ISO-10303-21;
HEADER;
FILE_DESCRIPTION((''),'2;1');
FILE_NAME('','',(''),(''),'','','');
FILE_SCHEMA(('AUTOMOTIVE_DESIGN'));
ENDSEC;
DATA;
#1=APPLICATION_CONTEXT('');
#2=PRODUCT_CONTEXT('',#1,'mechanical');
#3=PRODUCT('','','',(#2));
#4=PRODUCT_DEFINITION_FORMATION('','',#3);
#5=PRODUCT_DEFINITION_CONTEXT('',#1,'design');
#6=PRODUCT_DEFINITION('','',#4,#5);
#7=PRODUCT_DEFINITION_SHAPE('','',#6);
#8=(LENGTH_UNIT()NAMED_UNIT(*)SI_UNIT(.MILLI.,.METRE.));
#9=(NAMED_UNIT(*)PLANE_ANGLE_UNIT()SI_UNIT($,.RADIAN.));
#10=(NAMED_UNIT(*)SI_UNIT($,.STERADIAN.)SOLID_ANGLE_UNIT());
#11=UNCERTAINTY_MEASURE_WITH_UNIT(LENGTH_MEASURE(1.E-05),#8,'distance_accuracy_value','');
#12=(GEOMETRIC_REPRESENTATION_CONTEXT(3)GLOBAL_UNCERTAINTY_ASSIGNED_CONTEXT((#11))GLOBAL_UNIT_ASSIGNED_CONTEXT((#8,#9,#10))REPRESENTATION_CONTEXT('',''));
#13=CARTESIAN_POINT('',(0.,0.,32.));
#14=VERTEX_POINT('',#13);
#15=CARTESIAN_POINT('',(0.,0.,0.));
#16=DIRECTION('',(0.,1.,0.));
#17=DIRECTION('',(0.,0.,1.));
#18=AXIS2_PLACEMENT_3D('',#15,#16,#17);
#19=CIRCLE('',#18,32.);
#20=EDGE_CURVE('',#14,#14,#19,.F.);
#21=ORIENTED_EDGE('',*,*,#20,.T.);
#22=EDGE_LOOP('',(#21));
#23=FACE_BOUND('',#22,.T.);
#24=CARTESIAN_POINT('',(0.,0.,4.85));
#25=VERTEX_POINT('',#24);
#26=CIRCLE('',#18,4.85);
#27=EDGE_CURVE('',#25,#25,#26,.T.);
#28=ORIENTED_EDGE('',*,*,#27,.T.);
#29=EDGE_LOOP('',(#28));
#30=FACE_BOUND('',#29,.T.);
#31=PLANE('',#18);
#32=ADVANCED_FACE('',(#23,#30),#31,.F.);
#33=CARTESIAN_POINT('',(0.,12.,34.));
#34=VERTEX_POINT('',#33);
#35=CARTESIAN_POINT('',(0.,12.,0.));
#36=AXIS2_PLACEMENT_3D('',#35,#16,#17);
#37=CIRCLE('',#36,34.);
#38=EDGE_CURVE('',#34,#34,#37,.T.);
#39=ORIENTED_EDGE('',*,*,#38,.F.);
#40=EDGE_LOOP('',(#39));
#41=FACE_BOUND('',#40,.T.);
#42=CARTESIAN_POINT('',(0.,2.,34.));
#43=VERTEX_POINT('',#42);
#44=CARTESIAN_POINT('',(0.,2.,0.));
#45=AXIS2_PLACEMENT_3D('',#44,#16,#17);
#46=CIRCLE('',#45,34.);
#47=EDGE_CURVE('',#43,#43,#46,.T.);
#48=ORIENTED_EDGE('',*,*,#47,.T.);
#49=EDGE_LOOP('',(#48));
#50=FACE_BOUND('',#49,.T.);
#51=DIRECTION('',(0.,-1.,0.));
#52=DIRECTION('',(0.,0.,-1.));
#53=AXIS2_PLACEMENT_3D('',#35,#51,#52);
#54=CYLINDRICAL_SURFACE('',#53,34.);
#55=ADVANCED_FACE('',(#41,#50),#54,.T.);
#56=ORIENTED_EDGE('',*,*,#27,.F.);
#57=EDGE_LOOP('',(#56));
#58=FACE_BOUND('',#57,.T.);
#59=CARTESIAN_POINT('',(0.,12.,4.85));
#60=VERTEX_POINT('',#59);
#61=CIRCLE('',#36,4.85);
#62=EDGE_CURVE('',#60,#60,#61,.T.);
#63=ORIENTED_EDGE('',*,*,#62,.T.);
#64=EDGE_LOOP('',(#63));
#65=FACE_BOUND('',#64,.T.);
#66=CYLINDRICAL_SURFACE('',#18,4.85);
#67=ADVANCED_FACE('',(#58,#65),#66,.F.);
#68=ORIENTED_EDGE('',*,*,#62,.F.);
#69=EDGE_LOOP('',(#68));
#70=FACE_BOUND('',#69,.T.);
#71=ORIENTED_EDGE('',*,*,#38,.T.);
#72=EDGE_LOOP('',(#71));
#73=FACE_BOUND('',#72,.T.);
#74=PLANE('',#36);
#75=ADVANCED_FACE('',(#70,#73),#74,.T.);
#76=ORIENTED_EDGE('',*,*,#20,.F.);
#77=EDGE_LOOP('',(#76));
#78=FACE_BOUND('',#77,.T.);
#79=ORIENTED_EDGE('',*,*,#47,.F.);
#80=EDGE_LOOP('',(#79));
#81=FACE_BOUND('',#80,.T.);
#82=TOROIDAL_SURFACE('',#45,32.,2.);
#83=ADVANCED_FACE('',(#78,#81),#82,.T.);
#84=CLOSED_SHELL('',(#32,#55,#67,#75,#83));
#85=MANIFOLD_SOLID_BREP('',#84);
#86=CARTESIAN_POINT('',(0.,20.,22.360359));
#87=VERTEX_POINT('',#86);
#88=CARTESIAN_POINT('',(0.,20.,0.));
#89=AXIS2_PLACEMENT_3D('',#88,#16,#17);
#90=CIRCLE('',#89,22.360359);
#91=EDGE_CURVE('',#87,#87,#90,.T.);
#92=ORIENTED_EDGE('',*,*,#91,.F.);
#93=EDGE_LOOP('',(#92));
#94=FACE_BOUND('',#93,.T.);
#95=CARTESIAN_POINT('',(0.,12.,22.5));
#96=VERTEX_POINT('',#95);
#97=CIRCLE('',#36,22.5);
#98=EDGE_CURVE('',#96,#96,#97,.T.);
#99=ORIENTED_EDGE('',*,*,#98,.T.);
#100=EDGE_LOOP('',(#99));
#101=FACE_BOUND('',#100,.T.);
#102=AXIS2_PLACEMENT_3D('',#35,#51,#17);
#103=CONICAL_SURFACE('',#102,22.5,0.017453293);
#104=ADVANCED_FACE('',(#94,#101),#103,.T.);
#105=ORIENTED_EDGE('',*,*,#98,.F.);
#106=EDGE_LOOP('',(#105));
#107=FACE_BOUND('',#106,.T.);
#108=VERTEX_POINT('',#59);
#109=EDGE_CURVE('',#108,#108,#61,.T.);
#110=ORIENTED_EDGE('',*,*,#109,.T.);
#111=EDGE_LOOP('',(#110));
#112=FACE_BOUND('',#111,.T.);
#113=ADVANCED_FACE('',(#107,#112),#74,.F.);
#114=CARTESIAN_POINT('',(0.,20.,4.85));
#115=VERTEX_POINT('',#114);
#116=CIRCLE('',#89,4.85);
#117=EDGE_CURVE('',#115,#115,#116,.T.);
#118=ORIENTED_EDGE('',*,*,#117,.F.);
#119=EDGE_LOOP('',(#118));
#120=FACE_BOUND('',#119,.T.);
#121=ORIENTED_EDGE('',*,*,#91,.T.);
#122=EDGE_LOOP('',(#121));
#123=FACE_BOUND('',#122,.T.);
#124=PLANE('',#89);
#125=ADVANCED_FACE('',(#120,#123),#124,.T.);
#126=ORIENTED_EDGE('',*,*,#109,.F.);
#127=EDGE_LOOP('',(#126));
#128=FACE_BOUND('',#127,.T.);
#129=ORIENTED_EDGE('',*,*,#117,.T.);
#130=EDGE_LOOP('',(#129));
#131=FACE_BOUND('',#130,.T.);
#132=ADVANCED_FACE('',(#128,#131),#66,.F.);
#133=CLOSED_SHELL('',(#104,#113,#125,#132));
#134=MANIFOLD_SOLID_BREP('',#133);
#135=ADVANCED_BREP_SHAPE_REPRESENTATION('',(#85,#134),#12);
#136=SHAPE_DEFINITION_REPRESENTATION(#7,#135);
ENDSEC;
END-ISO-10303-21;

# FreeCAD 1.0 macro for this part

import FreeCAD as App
import Part
import Sketcher

V = App.Vector
Q = App.Units.Quantity


def edges_at(feature, points):
    """Names of the edges that pass closest to the given points."""
    edges = feature.Shape.Edges
    near = lambda p: min(range(len(edges)), key=lambda i: edges[i].distToShape(Part.Vertex(*p))[0])
    return sorted({f"Edge{near(p) + 1}" for p in points})

doc = App.newDocument("Part")
body = doc.addObject("PartDesign::Body", "Body")

sketch1 = doc.addObject("Sketcher::SketchObject", "Sketch")
body.addObject(sketch1)
sketch1.AttachmentSupport = (doc.XZ_Plane, [""])
sketch1.MapMode = "FlatFace"
sketch1.addGeometry(Part.Circle(V(0, 0, 0), V(0, 0, 1), 34), False)
sketch1.addConstraint([
    Sketcher.Constraint("Coincident", 0, 3, -1, 1),
    Sketcher.Constraint("Diameter", 0, Q("68 mm")),
])
pad1 = doc.addObject("PartDesign::Pad", "Pad")
body.addObject(pad1)
pad1.Profile = sketch1
pad1.Length = 12
pad1.Reversed = True
body2 = doc.addObject("PartDesign::Body", "Body001")

sketch2 = doc.addObject("Sketcher::SketchObject", "Sketch001")
body2.addObject(sketch2)
sketch2.AttachmentSupport = (doc.getObject("XZ_Plane001"), [""])
sketch2.MapMode = "FlatFace"
sketch2.AttachmentOffset = App.Placement(V(0, 0, -12), App.Rotation())
sketch2.addGeometry(Part.Circle(V(0, 0, 0), V(0, 0, 1), 22), False)
sketch2.addConstraint([
    Sketcher.Constraint("Coincident", 0, 3, -1, 1),
    Sketcher.Constraint("Diameter", 0, Q("45 mm")),
])
pad2 = doc.addObject("PartDesign::Pad", "Pad001")
body2.addObject(pad2)
pad2.Profile = sketch2
pad2.Length = 8
pad2.Reversed = True
pad2.TaperAngle = -1
body3 = doc.addObject("PartDesign::Body", "Body002")

sketch3 = doc.addObject("Sketcher::SketchObject", "Sketch002")
body3.addObject(sketch3)
sketch3.AttachmentSupport = (doc.getObject("XZ_Plane002"), [""])
sketch3.MapMode = "FlatFace"
sketch3.AttachmentOffset = App.Placement(V(0, 0, -20), App.Rotation())
sketch3.addGeometry(Part.Circle(V(0, 0, 0), V(0, 0, 1), 4.8), False)
sketch3.addConstraint([
    Sketcher.Constraint("Coincident", 0, 3, -1, 1),
    Sketcher.Constraint("Diameter", 0, Q("9.7 mm")),
])
pad3 = doc.addObject("PartDesign::Pad", "Pad002")
body3.addObject(pad3)
pad3.Profile = sketch3
pad3.Length = 53.076866
doc.recompute()

body4 = doc.addObject("PartDesign::Body", "Body003")
body4.BaseFeature = body3
boolean = doc.addObject("PartDesign::Boolean", "Boolean")
body.addObject(boolean)
boolean.Type = "Cut"
boolean.addObjects([body4])
doc.recompute()

fillet = doc.addObject("PartDesign::Fillet", "Fillet")
body.addObject(fillet)
fillet.Base = (boolean, edges_at(boolean, [(0, 0, -34)]))
fillet.Radius = 2
doc.recompute()

boolean2 = doc.addObject("PartDesign::Boolean", "Boolean001")
body2.addObject(boolean2)
boolean2.Type = "Cut"
boolean2.addObjects([body3])

doc.recompute()
